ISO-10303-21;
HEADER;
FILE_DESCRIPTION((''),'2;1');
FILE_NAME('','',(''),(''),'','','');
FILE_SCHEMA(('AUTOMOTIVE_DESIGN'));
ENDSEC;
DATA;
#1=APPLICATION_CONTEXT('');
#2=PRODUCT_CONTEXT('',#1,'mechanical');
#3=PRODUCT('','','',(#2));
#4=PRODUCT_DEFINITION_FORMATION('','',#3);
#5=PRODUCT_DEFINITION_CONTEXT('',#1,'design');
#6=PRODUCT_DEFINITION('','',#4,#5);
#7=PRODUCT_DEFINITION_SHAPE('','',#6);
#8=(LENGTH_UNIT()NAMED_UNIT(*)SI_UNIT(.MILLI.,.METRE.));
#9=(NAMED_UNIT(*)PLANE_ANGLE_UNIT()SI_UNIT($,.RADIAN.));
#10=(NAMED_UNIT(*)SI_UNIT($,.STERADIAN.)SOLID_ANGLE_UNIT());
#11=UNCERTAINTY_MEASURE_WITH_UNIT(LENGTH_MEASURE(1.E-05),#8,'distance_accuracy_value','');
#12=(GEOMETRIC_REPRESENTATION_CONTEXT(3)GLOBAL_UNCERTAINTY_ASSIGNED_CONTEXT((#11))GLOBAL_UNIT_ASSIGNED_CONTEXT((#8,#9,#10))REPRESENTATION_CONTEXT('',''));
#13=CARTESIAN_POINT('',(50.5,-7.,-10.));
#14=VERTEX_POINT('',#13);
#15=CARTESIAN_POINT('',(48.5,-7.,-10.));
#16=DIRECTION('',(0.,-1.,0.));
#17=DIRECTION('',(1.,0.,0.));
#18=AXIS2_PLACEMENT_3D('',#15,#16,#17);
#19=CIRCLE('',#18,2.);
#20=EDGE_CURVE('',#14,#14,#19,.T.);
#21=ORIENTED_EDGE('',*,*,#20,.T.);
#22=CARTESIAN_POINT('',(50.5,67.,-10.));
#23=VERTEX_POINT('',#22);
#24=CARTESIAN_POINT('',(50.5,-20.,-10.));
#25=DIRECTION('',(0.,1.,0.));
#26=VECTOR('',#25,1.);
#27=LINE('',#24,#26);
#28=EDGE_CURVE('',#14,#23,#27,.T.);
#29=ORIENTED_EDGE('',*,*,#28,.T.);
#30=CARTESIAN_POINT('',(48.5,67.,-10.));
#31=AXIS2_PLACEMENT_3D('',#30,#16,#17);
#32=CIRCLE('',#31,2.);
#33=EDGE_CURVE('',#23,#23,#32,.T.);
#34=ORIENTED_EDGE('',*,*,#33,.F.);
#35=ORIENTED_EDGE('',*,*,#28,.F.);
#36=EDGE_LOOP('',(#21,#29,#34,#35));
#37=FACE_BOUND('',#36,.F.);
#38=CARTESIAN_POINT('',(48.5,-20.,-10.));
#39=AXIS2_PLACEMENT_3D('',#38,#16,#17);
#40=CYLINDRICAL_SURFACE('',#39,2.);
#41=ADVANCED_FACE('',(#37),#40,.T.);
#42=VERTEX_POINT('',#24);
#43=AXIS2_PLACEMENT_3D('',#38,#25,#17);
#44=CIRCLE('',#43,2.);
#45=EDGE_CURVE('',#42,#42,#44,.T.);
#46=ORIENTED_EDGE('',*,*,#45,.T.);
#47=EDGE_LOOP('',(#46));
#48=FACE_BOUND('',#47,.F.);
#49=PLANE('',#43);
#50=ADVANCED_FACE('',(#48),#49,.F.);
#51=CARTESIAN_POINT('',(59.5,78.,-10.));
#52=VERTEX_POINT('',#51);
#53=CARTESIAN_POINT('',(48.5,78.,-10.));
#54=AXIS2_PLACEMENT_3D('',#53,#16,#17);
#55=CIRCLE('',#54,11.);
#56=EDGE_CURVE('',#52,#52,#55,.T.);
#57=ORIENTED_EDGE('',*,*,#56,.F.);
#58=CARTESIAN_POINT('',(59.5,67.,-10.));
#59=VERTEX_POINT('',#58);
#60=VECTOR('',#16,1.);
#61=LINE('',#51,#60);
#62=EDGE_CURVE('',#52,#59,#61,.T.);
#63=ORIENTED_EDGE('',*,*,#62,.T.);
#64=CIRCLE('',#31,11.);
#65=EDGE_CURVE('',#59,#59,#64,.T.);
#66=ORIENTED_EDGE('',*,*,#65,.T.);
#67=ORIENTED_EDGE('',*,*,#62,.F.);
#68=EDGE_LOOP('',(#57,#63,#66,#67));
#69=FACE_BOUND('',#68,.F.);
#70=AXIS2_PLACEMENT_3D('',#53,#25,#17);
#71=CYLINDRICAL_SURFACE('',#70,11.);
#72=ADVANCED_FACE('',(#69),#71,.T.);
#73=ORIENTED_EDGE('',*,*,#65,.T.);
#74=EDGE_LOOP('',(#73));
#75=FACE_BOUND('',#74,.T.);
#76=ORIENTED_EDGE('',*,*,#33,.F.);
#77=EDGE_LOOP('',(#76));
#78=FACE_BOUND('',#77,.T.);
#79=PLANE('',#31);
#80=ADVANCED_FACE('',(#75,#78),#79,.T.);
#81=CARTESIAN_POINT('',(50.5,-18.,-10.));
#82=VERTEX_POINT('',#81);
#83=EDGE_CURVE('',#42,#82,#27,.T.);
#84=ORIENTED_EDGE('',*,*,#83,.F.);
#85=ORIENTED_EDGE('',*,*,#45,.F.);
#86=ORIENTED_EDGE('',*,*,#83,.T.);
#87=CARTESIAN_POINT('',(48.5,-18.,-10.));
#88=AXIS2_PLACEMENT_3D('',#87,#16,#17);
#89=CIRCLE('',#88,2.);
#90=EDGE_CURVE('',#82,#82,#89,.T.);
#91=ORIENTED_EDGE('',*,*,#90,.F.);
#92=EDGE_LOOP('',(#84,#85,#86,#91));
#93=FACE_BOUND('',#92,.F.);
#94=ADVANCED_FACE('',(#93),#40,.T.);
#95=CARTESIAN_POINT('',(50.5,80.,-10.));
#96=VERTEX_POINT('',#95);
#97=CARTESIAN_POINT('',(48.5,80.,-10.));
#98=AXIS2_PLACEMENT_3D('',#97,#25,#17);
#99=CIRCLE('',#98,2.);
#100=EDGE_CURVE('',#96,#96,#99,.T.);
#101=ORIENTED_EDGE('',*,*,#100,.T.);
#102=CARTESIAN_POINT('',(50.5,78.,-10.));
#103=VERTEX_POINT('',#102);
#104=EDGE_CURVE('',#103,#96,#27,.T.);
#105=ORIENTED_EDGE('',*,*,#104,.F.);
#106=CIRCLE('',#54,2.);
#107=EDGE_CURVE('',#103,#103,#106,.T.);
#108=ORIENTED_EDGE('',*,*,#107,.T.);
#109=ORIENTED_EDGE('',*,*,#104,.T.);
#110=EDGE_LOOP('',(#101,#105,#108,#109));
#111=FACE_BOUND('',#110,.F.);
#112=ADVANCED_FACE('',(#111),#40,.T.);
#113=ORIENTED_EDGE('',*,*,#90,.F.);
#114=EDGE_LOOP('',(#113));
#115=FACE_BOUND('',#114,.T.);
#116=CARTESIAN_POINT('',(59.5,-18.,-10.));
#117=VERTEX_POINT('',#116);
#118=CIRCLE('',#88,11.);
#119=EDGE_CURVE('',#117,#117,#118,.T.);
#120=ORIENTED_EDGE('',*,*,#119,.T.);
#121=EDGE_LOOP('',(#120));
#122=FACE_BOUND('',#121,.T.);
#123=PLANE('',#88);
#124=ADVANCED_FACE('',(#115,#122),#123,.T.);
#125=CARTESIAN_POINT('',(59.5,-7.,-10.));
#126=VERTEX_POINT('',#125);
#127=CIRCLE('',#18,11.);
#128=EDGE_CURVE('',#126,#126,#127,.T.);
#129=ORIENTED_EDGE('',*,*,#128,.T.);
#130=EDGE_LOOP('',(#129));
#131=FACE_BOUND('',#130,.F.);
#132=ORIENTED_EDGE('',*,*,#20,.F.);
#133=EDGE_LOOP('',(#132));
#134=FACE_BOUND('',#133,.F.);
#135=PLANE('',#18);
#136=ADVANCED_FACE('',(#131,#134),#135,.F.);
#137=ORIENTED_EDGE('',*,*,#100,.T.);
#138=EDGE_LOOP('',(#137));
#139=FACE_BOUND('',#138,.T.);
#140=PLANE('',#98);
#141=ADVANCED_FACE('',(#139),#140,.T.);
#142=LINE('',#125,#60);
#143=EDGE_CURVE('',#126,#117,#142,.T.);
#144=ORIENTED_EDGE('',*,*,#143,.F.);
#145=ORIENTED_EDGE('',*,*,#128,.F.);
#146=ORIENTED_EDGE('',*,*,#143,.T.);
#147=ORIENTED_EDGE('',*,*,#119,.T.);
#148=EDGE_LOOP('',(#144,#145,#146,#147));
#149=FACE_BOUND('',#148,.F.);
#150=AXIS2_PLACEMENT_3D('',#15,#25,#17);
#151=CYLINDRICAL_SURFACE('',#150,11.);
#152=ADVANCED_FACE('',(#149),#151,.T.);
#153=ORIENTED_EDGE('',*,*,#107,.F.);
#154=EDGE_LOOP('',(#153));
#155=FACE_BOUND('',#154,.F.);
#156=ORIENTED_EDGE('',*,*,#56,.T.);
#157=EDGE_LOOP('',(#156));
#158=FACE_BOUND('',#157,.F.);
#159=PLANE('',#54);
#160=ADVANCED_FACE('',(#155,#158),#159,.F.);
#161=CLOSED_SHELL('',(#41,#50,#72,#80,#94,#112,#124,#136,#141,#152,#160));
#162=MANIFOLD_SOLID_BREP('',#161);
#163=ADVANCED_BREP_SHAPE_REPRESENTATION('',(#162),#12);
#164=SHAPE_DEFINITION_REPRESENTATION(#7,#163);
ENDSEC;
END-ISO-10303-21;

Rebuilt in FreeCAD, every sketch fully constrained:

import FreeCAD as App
import Part
import Sketcher

doc = App.newDocument("Part")
params = doc.addObject("Spreadsheet::Sheet", "Params")
for row, (alias, value) in enumerate([
    ("sketch1_diameter", "22 mm"),
    ("pad1_length", "11 mm"),
    ("sketch2_diameter", "22 mm"),
    ("pad2_length", "11 mm"),
    ("sketch3_diameter", "4 mm"),
    ("pad3_length", "100 mm"),
], start=1):
    params.set(f"A{row}", alias)
    params.set(f"B{row}", "=" + value)
    params.setAlias(f"B{row}", alias)

body = doc.addObject("PartDesign::Body", "Body")

# Sketch on XY plane
sketch1 = body.newObject("Sketcher::SketchObject", "Sketch")
sketch1.AttachmentSupport = (doc.getObject("XY_Plane"), [""])
sketch1.MapMode = "FlatFace"
sketch1.addGeometry(Part.Circle(App.Vector(0, 0, 0), App.Vector(0, 0, 1), 11), False)
sketch1.addConstraint(Sketcher.Constraint("Coincident", 0, 3, -1, 1))
sketch1.addConstraint(Sketcher.Constraint("Diameter", 0, 22.0))
sketch1.setExpression("Constraints[1]", "Params.sketch1_diameter")
pad1 = body.newObject("PartDesign::Pad", "Pad")
pad1.Profile = sketch1
pad1.setExpression("Length", "Params.pad1_length")
body2 = doc.addObject("PartDesign::Body", "Body001")
doc.recompute()

body.Placement = App.Placement(App.Vector(0, 0, 0), App.Rotation(App.Vector(1, 0, 0), 90))
boolean = body2.newObject("PartDesign::Boolean", "Boolean")
boolean.Type = "Fuse"
boolean.addObjects([body])
body3 = doc.addObject("PartDesign::Body", "Body002")
doc.recompute()

body2.Placement = App.Placement(App.Vector(20, 78, 14), App.Rotation(App.Vector(0, 0, 1), 0))
boolean2 = body3.newObject("PartDesign::Boolean", "Boolean001")
boolean2.Type = "Fuse"
boolean2.addObjects([body2])
body4 = doc.addObject("PartDesign::Body", "Body003")

# Sketch on XY plane
sketch2 = body4.newObject("Sketcher::SketchObject", "Sketch001")
sketch2.AttachmentSupport = (doc.getObject("XY_Plane003"), [""])
sketch2.MapMode = "FlatFace"
sketch2.addGeometry(Part.Circle(App.Vector(0, 0, 0), App.Vector(0, 0, 1), 11), False)
sketch2.addConstraint(Sketcher.Constraint("Coincident", 0, 3, -1, 1))
sketch2.addConstraint(Sketcher.Constraint("Diameter", 0, 22.0))
sketch2.setExpression("Constraints[1]", "Params.sketch2_diameter")
pad2 = body4.newObject("PartDesign::Pad", "Pad001")
pad2.Profile = sketch2
pad2.setExpression("Length", "Params.pad2_length")
body5 = doc.addObject("PartDesign::Body", "Body004")
doc.recompute()

body4.Placement = App.Placement(App.Vector(0, 0, 0), App.Rotation(App.Vector(1, 0, 0), 90))
boolean3 = body5.newObject("PartDesign::Boolean", "Boolean002")
boolean3.Type = "Fuse"
boolean3.addObjects([body4])
body6 = doc.addObject("PartDesign::Body", "Body005")
doc.recompute()

body5.Placement = App.Placement(App.Vector(20, -7, 14), App.Rotation(App.Vector(0, 0, 1), 0))
boolean4 = body6.newObject("PartDesign::Boolean", "Boolean003")
boolean4.Type = "Fuse"
boolean4.addObjects([body5])
body7 = doc.addObject("PartDesign::Body", "Body006")

# Sketch on XY plane
sketch3 = body7.newObject("Sketcher::SketchObject", "Sketch002")
sketch3.AttachmentSupport = (doc.getObject("XY_Plane006"), [""])
sketch3.MapMode = "FlatFace"
sketch3.addGeometry(Part.Circle(App.Vector(0, 0, 0), App.Vector(0, 0, 1), 2), False)
sketch3.addConstraint(Sketcher.Constraint("Coincident", 0, 3, -1, 1))
sketch3.addConstraint(Sketcher.Constraint("Diameter", 0, 4.0))
sketch3.setExpression("Constraints[1]", "Params.sketch3_diameter")
pad3 = body7.newObject("PartDesign::Pad", "Pad002")
pad3.Profile = sketch3
pad3.setExpression("Length", "Params.pad3_length")
body8 = doc.addObject("PartDesign::Body", "Body007")
doc.recompute()

body7.Placement = App.Placement(App.Vector(0, 0, 0), App.Rotation(App.Vector(1, 0, 0), 270))
boolean5 = body8.newObject("PartDesign::Boolean", "Boolean004")
boolean5.Type = "Fuse"
boolean5.addObjects([body7])
body9 = doc.addObject("PartDesign::Body", "Body008")
doc.recompute()

body8.Placement = App.Placement(App.Vector(20, -20, 14), App.Rotation(App.Vector(0, 0, 1), 0))
boolean6 = body9.newObject("PartDesign::Boolean", "Boolean005")
boolean6.Type = "Fuse"
boolean6.addObjects([body8])
doc.recompute()

boolean7 = body9.newObject("PartDesign::Boolean", "Boolean006")
boolean7.Type = "Fuse"
boolean7.addObjects([body3])
doc.recompute()

boolean8 = body9.newObject("PartDesign::Boolean", "Boolean007")
boolean8.Type = "Fuse"
boolean8.addObjects([body6])
body10 = doc.addObject("PartDesign::Body", "Body009")
doc.recompute()

body9.Placement = App.Placement(App.Vector(28.5, 0, -24), App.Rotation(App.Vector(0, 0, 1), 0))
boolean9 = body10.newObject("PartDesign::Boolean", "Boolean008")
boolean9.Type = "Fuse"
boolean9.addObjects([body9])

doc.recompute()
